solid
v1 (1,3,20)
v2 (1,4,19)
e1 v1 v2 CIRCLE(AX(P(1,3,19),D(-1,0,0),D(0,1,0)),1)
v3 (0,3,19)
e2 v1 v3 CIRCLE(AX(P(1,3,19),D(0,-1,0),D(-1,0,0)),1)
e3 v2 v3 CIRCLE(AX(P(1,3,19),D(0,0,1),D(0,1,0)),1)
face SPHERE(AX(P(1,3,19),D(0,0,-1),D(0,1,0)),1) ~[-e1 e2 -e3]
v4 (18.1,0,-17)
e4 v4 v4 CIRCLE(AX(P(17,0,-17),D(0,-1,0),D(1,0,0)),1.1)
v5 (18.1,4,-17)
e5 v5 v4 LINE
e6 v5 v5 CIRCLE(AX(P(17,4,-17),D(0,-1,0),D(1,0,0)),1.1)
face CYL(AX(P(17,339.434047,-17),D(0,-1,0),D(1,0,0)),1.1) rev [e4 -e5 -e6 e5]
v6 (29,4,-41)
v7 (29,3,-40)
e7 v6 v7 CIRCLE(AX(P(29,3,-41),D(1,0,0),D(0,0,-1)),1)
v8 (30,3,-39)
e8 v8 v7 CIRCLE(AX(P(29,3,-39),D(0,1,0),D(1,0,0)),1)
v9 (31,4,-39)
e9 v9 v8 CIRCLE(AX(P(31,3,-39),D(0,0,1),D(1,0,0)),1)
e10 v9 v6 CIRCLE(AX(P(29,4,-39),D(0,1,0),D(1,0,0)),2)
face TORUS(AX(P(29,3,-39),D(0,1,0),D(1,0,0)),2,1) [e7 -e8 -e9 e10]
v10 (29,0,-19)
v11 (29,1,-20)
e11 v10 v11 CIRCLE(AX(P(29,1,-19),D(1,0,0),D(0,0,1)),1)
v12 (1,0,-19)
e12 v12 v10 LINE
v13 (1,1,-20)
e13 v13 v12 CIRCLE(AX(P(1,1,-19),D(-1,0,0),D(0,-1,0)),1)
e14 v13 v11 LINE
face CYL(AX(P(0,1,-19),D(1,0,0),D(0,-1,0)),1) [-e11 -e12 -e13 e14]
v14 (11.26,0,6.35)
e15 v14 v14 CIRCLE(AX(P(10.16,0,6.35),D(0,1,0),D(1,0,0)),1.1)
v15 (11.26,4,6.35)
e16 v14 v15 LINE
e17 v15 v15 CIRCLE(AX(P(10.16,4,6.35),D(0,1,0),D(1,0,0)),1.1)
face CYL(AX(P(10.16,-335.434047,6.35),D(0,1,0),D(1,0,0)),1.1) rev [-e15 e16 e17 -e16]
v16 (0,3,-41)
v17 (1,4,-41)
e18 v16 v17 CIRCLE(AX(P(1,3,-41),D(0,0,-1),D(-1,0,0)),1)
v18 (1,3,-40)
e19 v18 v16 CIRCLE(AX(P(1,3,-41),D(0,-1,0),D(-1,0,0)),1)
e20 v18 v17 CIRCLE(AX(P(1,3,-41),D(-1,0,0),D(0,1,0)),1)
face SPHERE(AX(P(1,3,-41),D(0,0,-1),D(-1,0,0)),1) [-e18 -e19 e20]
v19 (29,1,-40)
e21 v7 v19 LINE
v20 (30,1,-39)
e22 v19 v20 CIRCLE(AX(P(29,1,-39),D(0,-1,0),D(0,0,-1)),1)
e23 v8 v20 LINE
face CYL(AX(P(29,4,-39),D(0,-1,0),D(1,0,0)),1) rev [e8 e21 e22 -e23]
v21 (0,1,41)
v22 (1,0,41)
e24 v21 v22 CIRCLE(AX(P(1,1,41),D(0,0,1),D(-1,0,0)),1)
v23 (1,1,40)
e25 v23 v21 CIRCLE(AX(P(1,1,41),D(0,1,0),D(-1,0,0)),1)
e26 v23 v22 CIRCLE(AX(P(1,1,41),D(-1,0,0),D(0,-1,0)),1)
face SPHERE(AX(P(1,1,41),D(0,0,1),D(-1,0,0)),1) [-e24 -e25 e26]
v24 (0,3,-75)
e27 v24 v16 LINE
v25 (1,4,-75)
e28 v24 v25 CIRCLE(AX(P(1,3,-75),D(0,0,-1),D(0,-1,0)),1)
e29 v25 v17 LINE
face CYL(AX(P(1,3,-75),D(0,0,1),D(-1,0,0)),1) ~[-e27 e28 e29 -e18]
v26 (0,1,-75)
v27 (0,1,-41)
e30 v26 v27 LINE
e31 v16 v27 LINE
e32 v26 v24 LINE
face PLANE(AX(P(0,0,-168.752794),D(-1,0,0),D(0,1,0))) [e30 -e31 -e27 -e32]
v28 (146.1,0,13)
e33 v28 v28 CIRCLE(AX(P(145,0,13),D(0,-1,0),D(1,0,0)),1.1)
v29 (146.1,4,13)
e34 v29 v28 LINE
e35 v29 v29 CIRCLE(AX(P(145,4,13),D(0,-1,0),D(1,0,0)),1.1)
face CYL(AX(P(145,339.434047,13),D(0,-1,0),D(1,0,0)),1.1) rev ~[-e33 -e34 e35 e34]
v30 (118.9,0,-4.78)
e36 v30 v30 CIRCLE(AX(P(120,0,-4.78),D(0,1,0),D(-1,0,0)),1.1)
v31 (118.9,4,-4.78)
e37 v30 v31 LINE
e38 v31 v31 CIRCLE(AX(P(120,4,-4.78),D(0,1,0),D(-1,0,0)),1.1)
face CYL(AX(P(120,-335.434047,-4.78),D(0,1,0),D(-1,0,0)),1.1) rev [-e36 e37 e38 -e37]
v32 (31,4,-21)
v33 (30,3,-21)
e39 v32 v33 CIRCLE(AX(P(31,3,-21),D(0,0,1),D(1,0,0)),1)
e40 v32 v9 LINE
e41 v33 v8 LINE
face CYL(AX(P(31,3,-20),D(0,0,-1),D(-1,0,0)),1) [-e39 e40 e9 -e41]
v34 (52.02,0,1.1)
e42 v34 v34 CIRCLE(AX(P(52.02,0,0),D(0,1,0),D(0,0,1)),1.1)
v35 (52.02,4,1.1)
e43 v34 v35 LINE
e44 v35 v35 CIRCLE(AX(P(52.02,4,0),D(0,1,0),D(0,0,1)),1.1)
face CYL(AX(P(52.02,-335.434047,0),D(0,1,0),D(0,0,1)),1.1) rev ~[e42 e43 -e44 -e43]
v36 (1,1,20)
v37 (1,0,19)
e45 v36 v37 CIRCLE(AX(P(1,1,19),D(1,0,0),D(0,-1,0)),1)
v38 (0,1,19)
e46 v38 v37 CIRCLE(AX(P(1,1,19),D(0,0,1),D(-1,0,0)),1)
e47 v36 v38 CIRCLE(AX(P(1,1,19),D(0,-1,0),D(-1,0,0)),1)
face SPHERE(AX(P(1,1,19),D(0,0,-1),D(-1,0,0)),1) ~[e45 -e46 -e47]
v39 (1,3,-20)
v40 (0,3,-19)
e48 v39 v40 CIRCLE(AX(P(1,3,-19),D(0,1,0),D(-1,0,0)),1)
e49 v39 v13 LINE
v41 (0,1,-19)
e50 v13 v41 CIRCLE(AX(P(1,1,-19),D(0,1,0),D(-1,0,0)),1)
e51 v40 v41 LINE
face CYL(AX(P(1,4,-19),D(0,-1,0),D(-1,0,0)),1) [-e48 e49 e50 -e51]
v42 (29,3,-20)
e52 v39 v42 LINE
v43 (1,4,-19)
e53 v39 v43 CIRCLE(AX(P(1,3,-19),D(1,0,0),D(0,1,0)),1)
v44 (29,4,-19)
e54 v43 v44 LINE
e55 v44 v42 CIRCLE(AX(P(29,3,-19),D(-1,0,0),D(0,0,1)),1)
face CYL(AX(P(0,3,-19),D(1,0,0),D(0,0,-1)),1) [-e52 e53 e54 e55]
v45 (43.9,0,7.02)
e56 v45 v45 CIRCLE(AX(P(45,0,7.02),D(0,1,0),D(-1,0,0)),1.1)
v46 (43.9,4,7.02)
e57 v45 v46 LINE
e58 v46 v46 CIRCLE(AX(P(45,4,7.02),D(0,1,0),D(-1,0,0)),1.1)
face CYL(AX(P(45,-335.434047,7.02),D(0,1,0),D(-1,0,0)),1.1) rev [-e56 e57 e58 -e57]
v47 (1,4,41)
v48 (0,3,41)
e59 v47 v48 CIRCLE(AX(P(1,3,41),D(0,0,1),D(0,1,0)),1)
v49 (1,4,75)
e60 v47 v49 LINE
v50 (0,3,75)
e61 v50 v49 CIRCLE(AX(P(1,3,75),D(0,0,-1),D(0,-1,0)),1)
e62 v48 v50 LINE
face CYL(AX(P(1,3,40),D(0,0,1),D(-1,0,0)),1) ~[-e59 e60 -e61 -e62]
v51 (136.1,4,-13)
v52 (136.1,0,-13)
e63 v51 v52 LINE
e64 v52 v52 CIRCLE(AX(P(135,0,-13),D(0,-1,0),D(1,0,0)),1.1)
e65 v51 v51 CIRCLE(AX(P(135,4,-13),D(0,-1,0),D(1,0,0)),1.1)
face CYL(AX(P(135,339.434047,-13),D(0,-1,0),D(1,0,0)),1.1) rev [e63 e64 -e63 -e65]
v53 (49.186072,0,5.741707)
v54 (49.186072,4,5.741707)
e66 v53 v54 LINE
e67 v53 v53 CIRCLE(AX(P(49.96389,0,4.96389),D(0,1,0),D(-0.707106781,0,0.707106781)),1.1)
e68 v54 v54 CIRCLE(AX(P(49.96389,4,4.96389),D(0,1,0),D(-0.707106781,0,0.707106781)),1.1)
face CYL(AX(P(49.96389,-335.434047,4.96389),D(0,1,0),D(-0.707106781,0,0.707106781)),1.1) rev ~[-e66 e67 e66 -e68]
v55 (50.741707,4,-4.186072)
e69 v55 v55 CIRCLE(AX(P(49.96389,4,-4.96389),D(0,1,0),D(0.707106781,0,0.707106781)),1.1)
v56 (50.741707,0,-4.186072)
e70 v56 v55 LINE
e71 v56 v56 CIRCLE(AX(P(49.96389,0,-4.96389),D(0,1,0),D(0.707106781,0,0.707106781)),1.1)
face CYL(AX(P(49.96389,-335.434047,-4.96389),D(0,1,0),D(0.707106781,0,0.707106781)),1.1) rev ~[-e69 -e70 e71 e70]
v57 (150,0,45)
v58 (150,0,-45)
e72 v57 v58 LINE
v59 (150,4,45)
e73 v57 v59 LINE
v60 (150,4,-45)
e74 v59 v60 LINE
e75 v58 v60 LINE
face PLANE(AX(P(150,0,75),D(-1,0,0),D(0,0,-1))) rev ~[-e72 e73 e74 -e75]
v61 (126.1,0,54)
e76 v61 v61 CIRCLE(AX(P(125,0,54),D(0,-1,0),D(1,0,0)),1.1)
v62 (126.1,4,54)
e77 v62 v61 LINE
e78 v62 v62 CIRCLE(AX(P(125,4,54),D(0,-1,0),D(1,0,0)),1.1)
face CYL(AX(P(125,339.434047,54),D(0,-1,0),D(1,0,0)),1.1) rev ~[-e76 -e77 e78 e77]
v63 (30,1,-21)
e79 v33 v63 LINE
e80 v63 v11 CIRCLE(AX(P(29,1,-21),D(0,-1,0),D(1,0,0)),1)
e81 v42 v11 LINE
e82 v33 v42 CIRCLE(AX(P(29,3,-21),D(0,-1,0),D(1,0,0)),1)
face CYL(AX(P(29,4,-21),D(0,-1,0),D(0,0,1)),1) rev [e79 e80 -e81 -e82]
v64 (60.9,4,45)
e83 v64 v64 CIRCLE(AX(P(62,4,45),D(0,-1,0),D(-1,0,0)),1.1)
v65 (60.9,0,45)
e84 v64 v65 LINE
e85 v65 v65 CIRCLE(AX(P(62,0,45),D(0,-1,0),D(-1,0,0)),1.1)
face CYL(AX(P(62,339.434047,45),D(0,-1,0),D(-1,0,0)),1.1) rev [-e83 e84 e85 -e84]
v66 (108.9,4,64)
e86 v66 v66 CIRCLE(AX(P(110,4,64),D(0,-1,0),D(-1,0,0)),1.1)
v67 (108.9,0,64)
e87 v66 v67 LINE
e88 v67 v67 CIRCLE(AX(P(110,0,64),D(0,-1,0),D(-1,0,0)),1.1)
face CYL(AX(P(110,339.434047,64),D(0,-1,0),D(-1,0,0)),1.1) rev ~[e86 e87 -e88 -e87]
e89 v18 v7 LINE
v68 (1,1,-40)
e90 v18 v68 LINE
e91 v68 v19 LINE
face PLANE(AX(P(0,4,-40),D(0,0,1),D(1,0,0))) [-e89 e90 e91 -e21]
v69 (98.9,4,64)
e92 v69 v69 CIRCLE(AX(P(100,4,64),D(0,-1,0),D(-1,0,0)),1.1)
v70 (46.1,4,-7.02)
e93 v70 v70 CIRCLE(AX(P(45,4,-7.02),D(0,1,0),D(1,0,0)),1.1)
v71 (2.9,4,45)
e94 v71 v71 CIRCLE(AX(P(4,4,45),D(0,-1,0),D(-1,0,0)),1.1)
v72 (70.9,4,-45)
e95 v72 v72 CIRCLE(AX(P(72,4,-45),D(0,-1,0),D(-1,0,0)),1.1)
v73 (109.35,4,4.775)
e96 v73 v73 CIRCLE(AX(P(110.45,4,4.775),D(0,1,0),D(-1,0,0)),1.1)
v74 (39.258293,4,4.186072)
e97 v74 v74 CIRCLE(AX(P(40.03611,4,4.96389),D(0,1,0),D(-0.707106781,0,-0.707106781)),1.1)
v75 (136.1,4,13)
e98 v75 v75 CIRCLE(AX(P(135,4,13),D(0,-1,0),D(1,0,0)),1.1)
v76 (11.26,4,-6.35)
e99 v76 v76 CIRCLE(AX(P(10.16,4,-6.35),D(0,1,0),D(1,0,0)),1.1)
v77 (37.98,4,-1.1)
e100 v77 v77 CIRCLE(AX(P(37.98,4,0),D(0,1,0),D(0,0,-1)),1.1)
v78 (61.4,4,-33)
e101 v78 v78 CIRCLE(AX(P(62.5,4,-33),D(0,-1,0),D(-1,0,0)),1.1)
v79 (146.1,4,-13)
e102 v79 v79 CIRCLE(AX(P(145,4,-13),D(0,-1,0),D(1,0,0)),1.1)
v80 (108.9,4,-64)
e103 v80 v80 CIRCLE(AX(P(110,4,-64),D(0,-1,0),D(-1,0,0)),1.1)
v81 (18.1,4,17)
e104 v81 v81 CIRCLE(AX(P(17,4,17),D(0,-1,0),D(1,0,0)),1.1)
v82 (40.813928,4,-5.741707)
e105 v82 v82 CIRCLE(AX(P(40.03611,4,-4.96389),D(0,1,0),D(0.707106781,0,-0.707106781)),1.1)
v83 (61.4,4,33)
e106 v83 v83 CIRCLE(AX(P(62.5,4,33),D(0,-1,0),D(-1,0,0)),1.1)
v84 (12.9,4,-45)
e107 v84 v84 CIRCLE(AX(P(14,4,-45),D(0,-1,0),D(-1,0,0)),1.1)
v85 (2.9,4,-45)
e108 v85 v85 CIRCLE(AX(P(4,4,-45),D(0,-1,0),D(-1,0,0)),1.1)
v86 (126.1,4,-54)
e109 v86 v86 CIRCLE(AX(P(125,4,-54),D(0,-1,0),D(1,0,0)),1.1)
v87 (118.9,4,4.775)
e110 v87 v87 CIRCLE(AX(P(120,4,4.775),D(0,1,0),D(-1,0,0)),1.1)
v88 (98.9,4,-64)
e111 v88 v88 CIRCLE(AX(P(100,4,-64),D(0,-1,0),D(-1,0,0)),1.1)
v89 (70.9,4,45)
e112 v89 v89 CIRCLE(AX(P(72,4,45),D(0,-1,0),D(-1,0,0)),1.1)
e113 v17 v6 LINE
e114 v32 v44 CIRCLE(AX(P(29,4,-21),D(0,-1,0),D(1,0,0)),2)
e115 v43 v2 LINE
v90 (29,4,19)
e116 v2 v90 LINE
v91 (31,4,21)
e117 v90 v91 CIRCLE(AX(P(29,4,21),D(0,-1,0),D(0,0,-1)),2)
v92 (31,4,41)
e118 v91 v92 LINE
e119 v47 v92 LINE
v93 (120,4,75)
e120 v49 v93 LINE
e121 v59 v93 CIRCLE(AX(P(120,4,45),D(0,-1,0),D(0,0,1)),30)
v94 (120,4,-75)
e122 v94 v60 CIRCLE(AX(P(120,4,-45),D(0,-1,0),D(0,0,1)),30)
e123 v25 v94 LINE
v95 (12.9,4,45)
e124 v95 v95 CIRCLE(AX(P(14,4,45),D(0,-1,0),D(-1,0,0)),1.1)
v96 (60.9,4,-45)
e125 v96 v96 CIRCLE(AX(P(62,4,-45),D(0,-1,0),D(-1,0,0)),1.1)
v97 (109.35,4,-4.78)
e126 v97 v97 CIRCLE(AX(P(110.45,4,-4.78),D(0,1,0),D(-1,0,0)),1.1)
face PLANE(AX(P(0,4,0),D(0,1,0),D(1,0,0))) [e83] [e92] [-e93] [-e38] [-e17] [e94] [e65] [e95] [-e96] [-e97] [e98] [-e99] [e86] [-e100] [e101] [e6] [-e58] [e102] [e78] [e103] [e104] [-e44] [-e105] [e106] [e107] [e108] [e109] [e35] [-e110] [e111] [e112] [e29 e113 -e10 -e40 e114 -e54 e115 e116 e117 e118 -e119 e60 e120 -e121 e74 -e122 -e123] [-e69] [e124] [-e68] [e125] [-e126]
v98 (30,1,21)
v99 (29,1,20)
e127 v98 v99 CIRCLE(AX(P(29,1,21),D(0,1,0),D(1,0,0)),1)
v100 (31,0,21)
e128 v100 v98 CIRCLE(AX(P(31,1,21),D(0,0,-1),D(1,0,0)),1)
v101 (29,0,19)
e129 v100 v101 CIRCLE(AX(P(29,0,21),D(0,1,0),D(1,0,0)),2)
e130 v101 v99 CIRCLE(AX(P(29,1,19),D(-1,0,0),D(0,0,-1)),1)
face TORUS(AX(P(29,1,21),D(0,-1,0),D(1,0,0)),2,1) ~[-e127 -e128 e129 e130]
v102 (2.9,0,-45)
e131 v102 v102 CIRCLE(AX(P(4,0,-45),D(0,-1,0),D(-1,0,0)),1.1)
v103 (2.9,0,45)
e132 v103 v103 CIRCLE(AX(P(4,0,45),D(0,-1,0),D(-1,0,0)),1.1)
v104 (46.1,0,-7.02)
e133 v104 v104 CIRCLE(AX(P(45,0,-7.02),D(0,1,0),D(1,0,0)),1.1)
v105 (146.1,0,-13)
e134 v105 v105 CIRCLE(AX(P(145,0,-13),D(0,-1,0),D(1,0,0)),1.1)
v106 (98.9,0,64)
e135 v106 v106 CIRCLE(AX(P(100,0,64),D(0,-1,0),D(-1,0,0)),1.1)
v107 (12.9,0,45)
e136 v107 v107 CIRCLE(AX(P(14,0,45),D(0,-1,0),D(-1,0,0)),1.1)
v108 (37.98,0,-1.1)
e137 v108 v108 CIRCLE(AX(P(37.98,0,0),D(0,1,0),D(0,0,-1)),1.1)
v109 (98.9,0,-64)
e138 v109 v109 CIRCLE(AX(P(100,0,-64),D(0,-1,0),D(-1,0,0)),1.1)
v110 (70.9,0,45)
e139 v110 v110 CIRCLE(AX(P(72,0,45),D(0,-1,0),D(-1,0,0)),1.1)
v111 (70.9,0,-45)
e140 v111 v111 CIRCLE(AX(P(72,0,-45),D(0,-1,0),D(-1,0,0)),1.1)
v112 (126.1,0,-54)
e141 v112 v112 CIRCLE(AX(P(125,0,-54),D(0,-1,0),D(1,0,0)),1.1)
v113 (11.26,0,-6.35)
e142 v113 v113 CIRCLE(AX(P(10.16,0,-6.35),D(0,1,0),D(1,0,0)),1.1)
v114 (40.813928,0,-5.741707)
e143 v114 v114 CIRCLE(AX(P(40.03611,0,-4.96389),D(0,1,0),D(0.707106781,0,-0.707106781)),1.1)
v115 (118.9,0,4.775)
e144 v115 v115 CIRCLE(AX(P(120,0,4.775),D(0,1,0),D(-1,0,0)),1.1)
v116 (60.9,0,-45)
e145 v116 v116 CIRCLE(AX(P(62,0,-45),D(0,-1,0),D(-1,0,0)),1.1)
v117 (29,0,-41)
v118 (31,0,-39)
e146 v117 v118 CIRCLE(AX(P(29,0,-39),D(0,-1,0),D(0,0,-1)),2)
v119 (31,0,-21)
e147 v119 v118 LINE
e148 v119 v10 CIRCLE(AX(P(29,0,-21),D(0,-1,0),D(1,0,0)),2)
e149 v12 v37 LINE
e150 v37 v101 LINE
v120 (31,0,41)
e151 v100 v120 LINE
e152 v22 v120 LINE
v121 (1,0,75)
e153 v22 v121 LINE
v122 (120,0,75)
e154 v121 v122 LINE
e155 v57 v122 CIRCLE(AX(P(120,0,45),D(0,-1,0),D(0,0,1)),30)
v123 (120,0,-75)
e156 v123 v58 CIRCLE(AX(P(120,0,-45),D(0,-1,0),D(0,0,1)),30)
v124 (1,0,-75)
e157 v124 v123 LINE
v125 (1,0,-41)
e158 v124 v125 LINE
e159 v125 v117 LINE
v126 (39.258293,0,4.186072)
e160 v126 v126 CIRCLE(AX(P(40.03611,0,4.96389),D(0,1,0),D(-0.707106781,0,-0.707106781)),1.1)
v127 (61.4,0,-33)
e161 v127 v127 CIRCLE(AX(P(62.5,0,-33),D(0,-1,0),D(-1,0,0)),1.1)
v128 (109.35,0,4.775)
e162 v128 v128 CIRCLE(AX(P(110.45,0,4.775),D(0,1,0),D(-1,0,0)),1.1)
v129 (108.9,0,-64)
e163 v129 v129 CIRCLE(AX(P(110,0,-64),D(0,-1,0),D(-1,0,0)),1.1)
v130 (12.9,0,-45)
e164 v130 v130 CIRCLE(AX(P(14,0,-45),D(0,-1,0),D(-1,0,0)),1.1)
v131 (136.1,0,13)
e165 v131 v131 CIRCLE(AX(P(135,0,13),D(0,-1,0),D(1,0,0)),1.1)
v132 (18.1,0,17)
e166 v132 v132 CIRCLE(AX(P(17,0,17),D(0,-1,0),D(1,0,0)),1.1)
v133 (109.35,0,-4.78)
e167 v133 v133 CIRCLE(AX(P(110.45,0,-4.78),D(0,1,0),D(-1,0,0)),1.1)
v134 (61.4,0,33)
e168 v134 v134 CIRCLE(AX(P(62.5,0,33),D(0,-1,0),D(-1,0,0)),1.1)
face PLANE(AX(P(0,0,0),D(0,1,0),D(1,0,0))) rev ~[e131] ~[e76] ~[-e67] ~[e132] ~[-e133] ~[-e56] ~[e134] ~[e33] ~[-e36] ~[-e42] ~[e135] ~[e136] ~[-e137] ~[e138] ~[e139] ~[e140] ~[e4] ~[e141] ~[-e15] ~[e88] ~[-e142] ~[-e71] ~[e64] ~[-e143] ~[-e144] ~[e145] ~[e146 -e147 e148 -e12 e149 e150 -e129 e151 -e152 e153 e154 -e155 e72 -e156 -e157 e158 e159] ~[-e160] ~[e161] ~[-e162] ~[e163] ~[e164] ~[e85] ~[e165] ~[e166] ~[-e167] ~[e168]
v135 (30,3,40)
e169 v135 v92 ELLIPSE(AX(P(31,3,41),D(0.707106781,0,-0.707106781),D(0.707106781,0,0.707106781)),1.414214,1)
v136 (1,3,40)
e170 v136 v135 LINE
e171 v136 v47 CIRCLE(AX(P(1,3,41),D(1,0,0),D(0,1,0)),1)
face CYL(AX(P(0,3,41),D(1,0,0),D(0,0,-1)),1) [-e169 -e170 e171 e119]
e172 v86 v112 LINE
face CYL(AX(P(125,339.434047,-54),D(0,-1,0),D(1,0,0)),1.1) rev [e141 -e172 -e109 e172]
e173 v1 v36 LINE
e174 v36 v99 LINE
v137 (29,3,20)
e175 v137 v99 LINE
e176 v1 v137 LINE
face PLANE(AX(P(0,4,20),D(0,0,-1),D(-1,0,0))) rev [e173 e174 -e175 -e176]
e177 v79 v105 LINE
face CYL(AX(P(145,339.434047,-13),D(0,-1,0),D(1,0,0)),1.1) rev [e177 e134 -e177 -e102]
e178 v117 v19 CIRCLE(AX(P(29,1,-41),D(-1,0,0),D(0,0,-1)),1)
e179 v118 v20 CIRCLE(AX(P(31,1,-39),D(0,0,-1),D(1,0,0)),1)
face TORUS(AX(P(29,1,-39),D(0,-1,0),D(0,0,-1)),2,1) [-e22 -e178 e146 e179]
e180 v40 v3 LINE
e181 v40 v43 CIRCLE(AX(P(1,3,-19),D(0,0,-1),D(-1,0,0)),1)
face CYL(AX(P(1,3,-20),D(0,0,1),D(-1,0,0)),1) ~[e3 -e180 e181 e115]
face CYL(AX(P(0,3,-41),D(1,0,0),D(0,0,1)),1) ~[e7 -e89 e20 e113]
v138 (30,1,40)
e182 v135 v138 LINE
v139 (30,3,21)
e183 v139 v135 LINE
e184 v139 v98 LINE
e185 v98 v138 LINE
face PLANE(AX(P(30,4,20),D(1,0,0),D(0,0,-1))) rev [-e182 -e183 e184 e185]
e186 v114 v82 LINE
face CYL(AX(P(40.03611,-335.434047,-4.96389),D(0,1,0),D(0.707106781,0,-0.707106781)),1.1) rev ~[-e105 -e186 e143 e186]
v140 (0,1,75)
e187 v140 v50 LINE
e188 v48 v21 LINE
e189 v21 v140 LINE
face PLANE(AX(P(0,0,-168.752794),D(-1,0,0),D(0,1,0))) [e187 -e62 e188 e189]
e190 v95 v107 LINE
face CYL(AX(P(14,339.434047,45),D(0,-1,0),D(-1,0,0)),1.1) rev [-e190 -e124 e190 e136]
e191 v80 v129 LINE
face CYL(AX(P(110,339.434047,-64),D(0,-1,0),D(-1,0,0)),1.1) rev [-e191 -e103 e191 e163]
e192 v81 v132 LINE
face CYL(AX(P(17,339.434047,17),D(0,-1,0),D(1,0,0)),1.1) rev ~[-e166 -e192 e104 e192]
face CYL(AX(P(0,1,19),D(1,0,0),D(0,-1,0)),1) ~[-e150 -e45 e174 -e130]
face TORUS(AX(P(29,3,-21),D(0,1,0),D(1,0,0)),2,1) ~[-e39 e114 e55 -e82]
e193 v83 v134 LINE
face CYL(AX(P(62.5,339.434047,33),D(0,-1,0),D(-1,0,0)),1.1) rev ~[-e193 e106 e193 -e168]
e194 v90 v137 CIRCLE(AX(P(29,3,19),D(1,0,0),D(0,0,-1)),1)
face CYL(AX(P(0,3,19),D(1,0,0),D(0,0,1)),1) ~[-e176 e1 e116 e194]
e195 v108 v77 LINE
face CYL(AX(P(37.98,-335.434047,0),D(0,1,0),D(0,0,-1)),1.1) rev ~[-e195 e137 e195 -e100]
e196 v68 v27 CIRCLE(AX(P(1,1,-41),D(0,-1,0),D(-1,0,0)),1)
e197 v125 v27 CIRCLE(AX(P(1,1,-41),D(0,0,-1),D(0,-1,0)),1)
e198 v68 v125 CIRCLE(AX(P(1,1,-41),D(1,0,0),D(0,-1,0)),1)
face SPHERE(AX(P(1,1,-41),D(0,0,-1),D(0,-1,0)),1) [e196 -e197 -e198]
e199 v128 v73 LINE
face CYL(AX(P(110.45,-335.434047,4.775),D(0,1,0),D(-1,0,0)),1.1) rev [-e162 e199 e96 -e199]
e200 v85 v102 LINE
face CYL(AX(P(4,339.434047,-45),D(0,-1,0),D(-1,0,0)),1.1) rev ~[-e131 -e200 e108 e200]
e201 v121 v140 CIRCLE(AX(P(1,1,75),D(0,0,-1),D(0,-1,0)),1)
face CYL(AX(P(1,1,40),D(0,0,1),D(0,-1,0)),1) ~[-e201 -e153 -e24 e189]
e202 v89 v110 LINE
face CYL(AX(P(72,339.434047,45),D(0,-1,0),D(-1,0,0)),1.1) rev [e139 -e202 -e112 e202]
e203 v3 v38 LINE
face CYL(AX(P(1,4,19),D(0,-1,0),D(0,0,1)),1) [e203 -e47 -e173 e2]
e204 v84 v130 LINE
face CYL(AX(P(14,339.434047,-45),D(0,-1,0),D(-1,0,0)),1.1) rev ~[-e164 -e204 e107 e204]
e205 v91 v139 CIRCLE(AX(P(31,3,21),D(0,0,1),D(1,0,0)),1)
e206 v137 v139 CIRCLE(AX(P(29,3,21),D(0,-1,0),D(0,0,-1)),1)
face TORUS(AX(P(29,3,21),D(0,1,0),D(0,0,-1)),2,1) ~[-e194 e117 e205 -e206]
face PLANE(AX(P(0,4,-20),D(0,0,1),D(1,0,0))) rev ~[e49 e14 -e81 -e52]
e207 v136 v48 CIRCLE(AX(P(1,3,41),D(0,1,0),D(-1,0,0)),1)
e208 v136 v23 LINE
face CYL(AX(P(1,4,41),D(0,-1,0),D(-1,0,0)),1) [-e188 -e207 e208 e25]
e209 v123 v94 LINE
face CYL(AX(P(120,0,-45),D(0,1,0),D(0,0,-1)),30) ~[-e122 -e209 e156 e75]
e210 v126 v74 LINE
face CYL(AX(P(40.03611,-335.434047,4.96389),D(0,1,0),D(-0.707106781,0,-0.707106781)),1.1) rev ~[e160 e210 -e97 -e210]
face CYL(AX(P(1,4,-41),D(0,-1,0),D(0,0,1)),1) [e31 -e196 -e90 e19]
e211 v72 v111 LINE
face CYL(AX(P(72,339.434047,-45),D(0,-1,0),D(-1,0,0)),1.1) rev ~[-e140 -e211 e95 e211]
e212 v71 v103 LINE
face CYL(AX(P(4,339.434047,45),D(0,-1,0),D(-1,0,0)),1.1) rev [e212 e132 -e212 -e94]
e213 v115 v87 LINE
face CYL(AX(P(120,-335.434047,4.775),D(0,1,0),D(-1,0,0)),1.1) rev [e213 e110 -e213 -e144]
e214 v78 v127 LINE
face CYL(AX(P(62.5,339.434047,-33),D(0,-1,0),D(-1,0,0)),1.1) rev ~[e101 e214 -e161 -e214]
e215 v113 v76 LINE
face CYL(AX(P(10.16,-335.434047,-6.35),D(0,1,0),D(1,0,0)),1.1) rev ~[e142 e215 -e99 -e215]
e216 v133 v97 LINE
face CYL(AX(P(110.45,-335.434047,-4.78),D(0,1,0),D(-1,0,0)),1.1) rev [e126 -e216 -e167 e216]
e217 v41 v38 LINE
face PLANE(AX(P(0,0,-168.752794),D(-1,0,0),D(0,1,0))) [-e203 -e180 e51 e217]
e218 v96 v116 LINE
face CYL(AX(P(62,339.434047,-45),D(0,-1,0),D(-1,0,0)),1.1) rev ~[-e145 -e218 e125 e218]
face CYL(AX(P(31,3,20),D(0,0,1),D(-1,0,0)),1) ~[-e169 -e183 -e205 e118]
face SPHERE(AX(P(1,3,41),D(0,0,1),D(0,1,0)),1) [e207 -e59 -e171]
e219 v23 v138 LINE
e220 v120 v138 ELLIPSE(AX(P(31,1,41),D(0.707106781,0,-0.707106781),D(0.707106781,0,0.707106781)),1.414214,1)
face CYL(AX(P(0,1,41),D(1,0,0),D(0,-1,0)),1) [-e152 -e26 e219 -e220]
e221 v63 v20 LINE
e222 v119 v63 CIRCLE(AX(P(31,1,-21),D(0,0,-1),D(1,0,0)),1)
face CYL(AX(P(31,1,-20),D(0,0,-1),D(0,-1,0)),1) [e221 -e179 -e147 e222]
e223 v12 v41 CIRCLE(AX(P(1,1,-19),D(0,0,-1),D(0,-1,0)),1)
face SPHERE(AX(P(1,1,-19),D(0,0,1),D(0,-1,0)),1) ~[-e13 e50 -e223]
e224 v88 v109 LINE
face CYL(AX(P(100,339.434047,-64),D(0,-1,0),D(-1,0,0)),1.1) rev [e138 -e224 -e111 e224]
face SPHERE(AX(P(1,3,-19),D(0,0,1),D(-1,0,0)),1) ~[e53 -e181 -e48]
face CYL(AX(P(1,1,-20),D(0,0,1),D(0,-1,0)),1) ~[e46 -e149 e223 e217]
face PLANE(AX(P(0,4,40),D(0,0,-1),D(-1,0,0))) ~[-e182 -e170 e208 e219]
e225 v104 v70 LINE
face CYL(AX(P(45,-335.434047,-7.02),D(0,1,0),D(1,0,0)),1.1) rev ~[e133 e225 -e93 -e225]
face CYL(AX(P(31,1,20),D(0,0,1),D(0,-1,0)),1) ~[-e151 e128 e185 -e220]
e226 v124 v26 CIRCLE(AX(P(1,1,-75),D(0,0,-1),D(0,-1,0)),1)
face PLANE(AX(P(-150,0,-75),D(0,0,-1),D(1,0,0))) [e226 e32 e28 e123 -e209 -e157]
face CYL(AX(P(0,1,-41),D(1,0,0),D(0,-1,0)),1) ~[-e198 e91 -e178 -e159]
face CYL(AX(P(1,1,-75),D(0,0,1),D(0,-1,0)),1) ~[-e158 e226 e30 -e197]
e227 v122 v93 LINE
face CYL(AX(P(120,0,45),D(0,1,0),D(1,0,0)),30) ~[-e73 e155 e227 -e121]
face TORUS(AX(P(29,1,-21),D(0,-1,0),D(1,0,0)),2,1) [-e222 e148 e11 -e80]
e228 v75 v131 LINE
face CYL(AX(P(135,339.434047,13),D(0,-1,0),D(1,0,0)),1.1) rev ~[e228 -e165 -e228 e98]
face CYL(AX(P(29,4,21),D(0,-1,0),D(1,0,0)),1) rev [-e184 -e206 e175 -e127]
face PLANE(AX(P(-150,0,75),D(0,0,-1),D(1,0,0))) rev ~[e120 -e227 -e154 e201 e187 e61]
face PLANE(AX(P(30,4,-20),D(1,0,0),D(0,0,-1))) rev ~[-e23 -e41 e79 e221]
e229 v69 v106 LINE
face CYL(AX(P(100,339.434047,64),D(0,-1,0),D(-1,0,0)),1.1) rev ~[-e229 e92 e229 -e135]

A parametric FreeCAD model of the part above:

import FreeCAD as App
import Part
import Sketcher
from FreeCAD import Vector


def edges_at(feature, points):
    """Names of the edges that pass closest to the given points."""
    edges = feature.Shape.Edges
    near = lambda p: min(range(len(edges)), key=lambda i: edges[i].distToShape(Part.Vertex(*p))[0])
    return sorted({f"Edge{near(p) + 1}" for p in points})


def add_polygon(sketch, points):
    """Adds a closed chain of lines whose ends are joined by coincident constraints."""
    first, n = sketch.GeometryCount, len(points)
    for a, b in zip(points, points[1:] + points[:1]):
        sketch.addGeometry(Part.LineSegment(App.Vector(*a, 0), App.Vector(*b, 0)), False)
    for i in range(n):
        sketch.addConstraint(Sketcher.Constraint("Coincident", first + i, 2, first + (i + 1) % n, 1))

doc = App.newDocument("Part")
body = doc.addObject("PartDesign::Body", "Body")

# Sketch on XZ plane
sketch1 = body.newObject("Sketcher::SketchObject", "Sketch")
sketch1.AttachmentSupport = (doc.getObject("XZ_Plane"), [""])
sketch1.MapMode = "FlatFace"
add_polygon(sketch1, [(-150, -75), (-150, 75), (150, 75), (150, -75)])  # lines 0-3
sketch1.addConstraint(Sketcher.Constraint("Vertical", 0))
sketch1.addConstraint(Sketcher.Constraint("Horizontal", 1))
sketch1.addConstraint(Sketcher.Constraint("Vertical", 2))
sketch1.addConstraint(Sketcher.Constraint("Horizontal", 3))
sketch1.addConstraint(Sketcher.Constraint("Symmetric", 0, 2, 2, 2, -1, 1))
sketch1.addConstraint(Sketcher.Constraint("DistanceX", 1, 1, 1, 2, 300.0))
sketch1.addConstraint(Sketcher.Constraint("DistanceY", 0, 1, 0, 2, 150.0))
pad1 = body.newObject("PartDesign::Pad", "Pad")
pad1.Profile = sketch1
pad1.Length = 4
pad1.Reversed = True
doc.recompute()

fillet = body.newObject("PartDesign::Fillet", "Fillet")
fillet.Base = (pad1, edges_at(pad1, [(-150, 2, 75)]))
fillet.Radius = 30
doc.recompute()

fillet2 = body.newObject("PartDesign::Fillet", "Fillet001")
fillet2.Base = (fillet, edges_at(fillet, [(-150, 2, -75)]))
fillet2.Radius = 30
doc.recompute()

fillet3 = body.newObject("PartDesign::Fillet", "Fillet002")
fillet3.Base = (fillet2, edges_at(fillet2, [(150, 2, -75)]))
fillet3.Radius = 30
doc.recompute()

fillet4 = body.newObject("PartDesign::Fillet", "Fillet003")
fillet4.Base = (fillet3, edges_at(fillet3, [(150, 2, 75)]))
fillet4.Radius = 30

# Sketch on XZ plane
sketch2 = body.newObject("Sketcher::SketchObject", "Sketch001")
sketch2.AttachmentSupport = (doc.getObject("XZ_Plane"), [""])
sketch2.MapMode = "FlatFace"
sketch2.addGeometry(Part.Circle(Vector(-45, 7, 0), Vector(0, 0, 1), 1.1), False)
sketch2.addConstraint(Sketcher.Constraint("Diameter", 0, 2.2))
sketch2.addConstraint(Sketcher.Constraint("DistanceX", 0, 3, -1, 1, 45.0))
sketch2.addConstraint(Sketcher.Constraint("DistanceY", -1, 1, 0, 3, 7.02))
doc.recompute()
hole = body.newObject("PartDesign::Hole", "Hole")
hole.Profile = sketch2
hole.ThreadType = "None"
hole.Diameter = 2.2
hole.DepthType = "ThroughAll"
doc.recompute()

datumline = body.newObject("PartDesign::Line", "DatumLine")
datumline.Placement = App.Placement(Vector(-45, 0, 0), App.Rotation(Vector(0, 0, 1), Vector(0, 1, 0)))
polarpattern = body.newObject("PartDesign::PolarPattern", "PolarPattern")
polarpattern.Originals = [hole]
polarpattern.Axis = (datumline, [""])
polarpattern.Angle = 360
polarpattern.Occurrences = 8
body.Tip = polarpattern
doc.recompute()

mirrored = body.newObject("PartDesign::Mirrored", "Mirrored")
mirrored.Originals = [hole]
mirrored.MirrorPlane = (doc.getObject("YZ_Plane"), [""])
body.Tip = mirrored

# Sketch on XZ plane
sketch3 = body.newObject("Sketcher::SketchObject", "Sketch002")
sketch3.AttachmentSupport = (doc.getObject("XZ_Plane"), [""])
sketch3.MapMode = "FlatFace"
sketch3.addGeometry(Part.Circle(Vector(40, 5, 0), Vector(0, 0, 1), 1.1), False)
sketch3.addConstraint(Sketcher.Constraint("Diameter", 0, 2.2))
sketch3.addConstraint(Sketcher.Constraint("DistanceX", -1, 1, 0, 3, 40.03611))
sketch3.addConstraint(Sketcher.Constraint("DistanceY", -1, 1, 0, 3, 4.96389))
doc.recompute()
hole2 = body.newObject("PartDesign::Hole", "Hole001")
hole2.Profile = sketch3
hole2.ThreadType = "None"
hole2.Diameter = 2.2
hole2.DepthType = "ThroughAll"

# Sketch on XZ plane
sketch4 = body.newObject("Sketcher::SketchObject", "Sketch003")
sketch4.AttachmentSupport = (doc.getObject("XZ_Plane"), [""])
sketch4.MapMode = "FlatFace"
sketch4.addGeometry(Part.Circle(Vector(38, 0, 0), Vector(0, 0, 1), 1.1), False)
sketch4.addConstraint(Sketcher.Constraint("PointOnObject", 0, 3, -1))
sketch4.addConstraint(Sketcher.Constraint("Diameter", 0, 2.2))
sketch4.addConstraint(Sketcher.Constraint("DistanceX", -1, 1, 0, 3, 37.98))
doc.recompute()
hole3 = body.newObject("PartDesign::Hole", "Hole002")
hole3.Profile = sketch4
hole3.ThreadType = "None"
hole3.Diameter = 2.2
hole3.DepthType = "ThroughAll"

# Sketch on XZ plane
sketch5 = body.newObject("Sketcher::SketchObject", "Sketch004")
sketch5.AttachmentSupport = (doc.getObject("XZ_Plane"), [""])
sketch5.MapMode = "FlatFace"
sketch5.addGeometry(Part.Circle(Vector(40, -5, 0), Vector(0, 0, 1), 1.1), False)
sketch5.addConstraint(Sketcher.Constraint("Diameter", 0, 2.2))
sketch5.addConstraint(Sketcher.Constraint("DistanceX", -1, 1, 0, 3, 40.03611))
sketch5.addConstraint(Sketcher.Constraint("DistanceY", 0, 3, -1, 1, 4.96389))
doc.recompute()
hole4 = body.newObject("PartDesign::Hole", "Hole003")
hole4.Profile = sketch5
hole4.ThreadType = "None"
hole4.Diameter = 2.2
hole4.DepthType = "ThroughAll"

# Sketch on XZ plane
sketch6 = body.newObject("Sketcher::SketchObject", "Sketch005")
sketch6.AttachmentSupport = (doc.getObject("XZ_Plane"), [""])
sketch6.MapMode = "FlatFace"
sketch6.addGeometry(Part.Circle(Vector(45, -7, 0), Vector(0, 0, 1), 1.1), False)
sketch6.addConstraint(Sketcher.Constraint("Diameter", 0, 2.2))
sketch6.addConstraint(Sketcher.Constraint("DistanceX", -1, 1, 0, 3, 45.0))
sketch6.addConstraint(Sketcher.Constraint("DistanceY", 0, 3, -1, 1, 7.02))
doc.recompute()
hole5 = body.newObject("PartDesign::Hole", "Hole004")
hole5.Profile = sketch6
hole5.ThreadType = "None"
hole5.Diameter = 2.2
hole5.DepthType = "ThroughAll"

# Sketch on XZ plane
sketch7 = body.newObject("Sketcher::SketchObject", "Sketch006")
sketch7.AttachmentSupport = (doc.getObject("XZ_Plane"), [""])
sketch7.MapMode = "FlatFace"
sketch7.addGeometry(Part.Circle(Vector(50, -5, 0), Vector(0, 0, 1), 1.1), False)
sketch7.addConstraint(Sketcher.Constraint("Diameter", 0, 2.2))
sketch7.addConstraint(Sketcher.Constraint("DistanceX", -1, 1, 0, 3, 49.96389))
sketch7.addConstraint(Sketcher.Constraint("DistanceY", 0, 3, -1, 1, 4.96389))
doc.recompute()
hole6 = body.newObject("PartDesign::Hole", "Hole005")
hole6.Profile = sketch7
hole6.ThreadType = "None"
hole6.Diameter = 2.2
hole6.DepthType = "ThroughAll"

# Sketch on XZ plane
sketch8 = body.newObject("Sketcher::SketchObject", "Sketch007")
sketch8.AttachmentSupport = (doc.getObject("XZ_Plane"), [""])
sketch8.MapMode = "FlatFace"
sketch8.addGeometry(Part.Circle(Vector(52, 0, 0), Vector(0, 0, 1), 1.1), False)
sketch8.addConstraint(Sketcher.Constraint("PointOnObject", 0, 3, -1))
sketch8.addConstraint(Sketcher.Constraint("Diameter", 0, 2.2))
sketch8.addConstraint(Sketcher.Constraint("DistanceX", -1, 1, 0, 3, 52.02))
doc.recompute()
hole7 = body.newObject("PartDesign::Hole", "Hole006")
hole7.Profile = sketch8
hole7.ThreadType = "None"
hole7.Diameter = 2.2
hole7.DepthType = "ThroughAll"

# Sketch on XZ plane
sketch9 = body.newObject("Sketcher::SketchObject", "Sketch008")
sketch9.AttachmentSupport = (doc.getObject("XZ_Plane"), [""])
sketch9.MapMode = "FlatFace"
sketch9.addGeometry(Part.Circle(Vector(50, 5, 0), Vector(0, 0, 1), 1.1), False)
sketch9.addConstraint(Sketcher.Constraint("Diameter", 0, 2.2))
sketch9.addConstraint(Sketcher.Constraint("DistanceX", -1, 1, 0, 3, 49.96389))
sketch9.addConstraint(Sketcher.Constraint("DistanceY", -1, 1, 0, 3, 4.96389))
doc.recompute()
hole8 = body.newObject("PartDesign::Hole", "Hole007")
hole8.Profile = sketch9
hole8.ThreadType = "None"
hole8.Diameter = 2.2
hole8.DepthType = "ThroughAll"

# Sketch on XZ plane
sketch10 = body.newObject("Sketcher::SketchObject", "Sketch009")
sketch10.AttachmentSupport = (doc.getObject("XZ_Plane"), [""])
sketch10.MapMode = "FlatFace"
sketch10.addGeometry(Part.Circle(Vector(-120, -4.8, 0), Vector(0, 0, 1), 1.1), False)
sketch10.addGeometry(Part.Circle(Vector(-120, 4.8, 0), Vector(0, 0, 1), 1.1), False)
sketch10.addGeometry(Part.Circle(Vector(-110.5, 4.8, 0), Vector(0, 0, 1), 1.1), False)
sketch10.addGeometry(Part.Circle(Vector(-110.5, -4.8, 0), Vector(0, 0, 1), 1.1), False)
sketch10.addConstraint(Sketcher.Constraint("Equal", 0, 1))
sketch10.addConstraint(Sketcher.Constraint("Equal", 1, 2))
sketch10.addConstraint(Sketcher.Constraint("Equal", 2, 3))
sketch10.addConstraint(Sketcher.Constraint("Horizontal", 1, 3, 2, 3))
sketch10.addConstraint(Sketcher.Constraint("Horizontal", 0, 3, 3, 3))
sketch10.addConstraint(Sketcher.Constraint("Vertical", 0, 3, 1, 3))
sketch10.addConstraint(Sketcher.Constraint("Vertical", 2, 3, 3, 3))
sketch10.addConstraint(Sketcher.Constraint("Diameter", 0, 2.2))
sketch10.addConstraint(Sketcher.Constraint("DistanceX", 0, 3, -1, 1, 120.0))
sketch10.addConstraint(Sketcher.Constraint("DistanceY", 0, 3, -1, 1, 4.78))
sketch10.addConstraint(Sketcher.Constraint("DistanceX", 2, 3, -1, 1, 110.45))
sketch10.addConstraint(Sketcher.Constraint("DistanceY", -1, 1, 1, 3, 4.775))
doc.recompute()
hole9 = body.newObject("PartDesign::Hole", "Hole008")
hole9.Profile = sketch10
hole9.ThreadType = "None"
hole9.Diameter = 2.2
hole9.DepthType = "ThroughAll"
doc.recompute()

mirrored2 = body.newObject("PartDesign::Mirrored", "Mirrored001")
mirrored2.Originals = [hole9]
mirrored2.MirrorPlane = (doc.getObject("YZ_Plane"), [""])
body.Tip = mirrored2

# Sketch on XZ plane
sketch11 = body.newObject("Sketcher::SketchObject", "Sketch010")
sketch11.AttachmentSupport = (doc.getObject("XZ_Plane"), [""])
sketch11.MapMode = "FlatFace"
sketch11.AttachmentOffset = App.Placement(Vector(0, 0, -4), App.Rotation())
sketch11.addGeometry(Part.Circle(Vector(100, 64, 0), Vector(0, 0, 1), 1.1), False)
sketch11.addGeometry(Part.Circle(Vector(110, 64, 0), Vector(0, 0, 1), 1.1), False)
sketch11.addGeometry(Part.Circle(Vector(-100, 64, 0), Vector(0, 0, 1), 1.1), False)
sketch11.addGeometry(Part.Circle(Vector(-110, 64, 0), Vector(0, 0, 1), 1.1), False)
sketch11.addConstraint(Sketcher.Constraint("Equal", 0, 1))
sketch11.addConstraint(Sketcher.Constraint("Equal", 1, 2))
sketch11.addConstraint(Sketcher.Constraint("Equal", 2, 3))
sketch11.addConstraint(Sketcher.Constraint("Symmetric", 0, 3, 2, 3, -2))
sketch11.addConstraint(Sketcher.Constraint("Symmetric", 1, 3, 3, 3, -2))
sketch11.addConstraint(Sketcher.Constraint("Horizontal", 0, 3, 1, 3))
sketch11.addConstraint(Sketcher.Constraint("Diameter", 0, 2.2))
sketch11.addConstraint(Sketcher.Constraint("DistanceX", -1, 1, 0, 3, 100.0))
sketch11.addConstraint(Sketcher.Constraint("DistanceY", -1, 1, 0, 3, 64.0))
sketch11.addConstraint(Sketcher.Constraint("DistanceX", -1, 1, 1, 3, 110.0))
doc.recompute()
hole10 = body.newObject("PartDesign::Hole", "Hole009")
hole10.Profile = sketch11
hole10.ThreadType = "None"
hole10.Diameter = 2.2
hole10.DepthType = "ThroughAll"
hole10.Reversed = True
doc.recompute()

mirrored3 = body.newObject("PartDesign::Mirrored", "Mirrored002")
mirrored3.Originals = [hole10]
mirrored3.MirrorPlane = (doc.getObject("XY_Plane"), [""])
body.Tip = mirrored3

# Sketch on XZ plane
sketch12 = body.newObject("Sketcher::SketchObject", "Sketch011")
sketch12.AttachmentSupport = (doc.getObject("XZ_Plane"), [""])
sketch12.MapMode = "FlatFace"
sketch12.AttachmentOffset = App.Placement(Vector(0, 0, -4), App.Rotation())
sketch12.addGeometry(Part.Circle(Vector(-125, -54, 0), Vector(0, 0, 1), 1.1), False)
sketch12.addConstraint(Sketcher.Constraint("Diameter", 0, 2.2))
sketch12.addConstraint(Sketcher.Constraint("DistanceX", 0, 3, -1, 1, 125.0))
sketch12.addConstraint(Sketcher.Constraint("DistanceY", 0, 3, -1, 1, 54.0))
doc.recompute()
hole11 = body.newObject("PartDesign::Hole", "Hole010")
hole11.Profile = sketch12
hole11.ThreadType = "None"
hole11.Diameter = 2.2
hole11.DepthType = "ThroughAll"
hole11.Reversed = True
doc.recompute()

mirrored4 = body.newObject("PartDesign::Mirrored", "Mirrored003")
mirrored4.Originals = [hole11]
mirrored4.MirrorPlane = (doc.getObject("YZ_Plane"), [""])
body.Tip = mirrored4
doc.recompute()

mirrored5 = body.newObject("PartDesign::Mirrored", "Mirrored004")
mirrored5.Originals = [hole11]
mirrored5.MirrorPlane = (doc.getObject("XY_Plane"), [""])
body.Tip = mirrored5

# Sketch on XZ plane
sketch13 = body.newObject("Sketcher::SketchObject", "Sketch012")
sketch13.AttachmentSupport = (doc.getObject("XZ_Plane"), [""])
sketch13.MapMode = "FlatFace"
sketch13.AttachmentOffset = App.Placement(Vector(0, 0, -4), App.Rotation())
sketch13.addGeometry(Part.Circle(Vector(125, 54, 0), Vector(0, 0, 1), 1.1), False)
sketch13.addConstraint(Sketcher.Constraint("Diameter", 0, 2.2))
sketch13.addConstraint(Sketcher.Constraint("DistanceX", -1, 1, 0, 3, 125.0))
sketch13.addConstraint(Sketcher.Constraint("DistanceY", -1, 1, 0, 3, 54.0))
doc.recompute()
hole12 = body.newObject("PartDesign::Hole", "Hole011")
hole12.Profile = sketch13
hole12.ThreadType = "None"
hole12.Diameter = 2.2
hole12.DepthType = "ThroughAll"
hole12.Reversed = True

# Sketch on XZ plane
sketch14 = body.newObject("Sketcher::SketchObject", "Sketch013")
sketch14.AttachmentSupport = (doc.getObject("XZ_Plane"), [""])
sketch14.MapMode = "FlatFace"
sketch14.AttachmentOffset = App.Placement(Vector(0, 0, -4), App.Rotation())
sketch14.addGeometry(Part.Circle(Vector(-62.5, -33, 0), Vector(0, 0, 1), 1.1), False)
sketch14.addGeometry(Part.Circle(Vector(-62.5, 33, 0), Vector(0, 0, 1), 1.1), False)
sketch14.addGeometry(Part.Circle(Vector(62.5, 33, 0), Vector(0, 0, 1), 1.1), False)
sketch14.addGeometry(Part.Circle(Vector(62.5, -33, 0), Vector(0, 0, 1), 1.1), False)
sketch14.addConstraint(Sketcher.Constraint("Equal", 0, 1))
sketch14.addConstraint(Sketcher.Constraint("Equal", 1, 2))
sketch14.addConstraint(Sketcher.Constraint("Equal", 2, 3))
sketch14.addConstraint(Sketcher.Constraint("Symmetric", 0, 3, 2, 3, -1, 1))
sketch14.addConstraint(Sketcher.Constraint("Symmetric", 1, 3, 3, 3, -1, 1))
sketch14.addConstraint(Sketcher.Constraint("Symmetric", 1, 3, 2, 3, -2))
sketch14.addConstraint(Sketcher.Constraint("Diameter", 0, 2.2))
sketch14.addConstraint(Sketcher.Constraint("DistanceY", 0, 3, -1, 1, 33.0))
sketch14.addConstraint(Sketcher.Constraint("DistanceX", 1, 3, 2, 3, 125.0))
doc.recompute()
hole13 = body.newObject("PartDesign::Hole", "Hole012")
hole13.Profile = sketch14
hole13.ThreadType = "None"
hole13.Diameter = 2.2
hole13.DepthType = "ThroughAll"
hole13.Reversed = True

# Sketch on XZ plane
sketch15 = body.newObject("Sketcher::SketchObject", "Sketch014")
sketch15.AttachmentSupport = (doc.getObject("XZ_Plane"), [""])
sketch15.MapMode = "FlatFace"
sketch15.AttachmentOffset = App.Placement(Vector(0, 0, -4), App.Rotation())
sketch15.addGeometry(Part.Circle(Vector(-145, -13, 0), Vector(0, 0, 1), 1.1), False)
sketch15.addGeometry(Part.Circle(Vector(-135, -13, 0), Vector(0, 0, 1), 1.1), False)
sketch15.addConstraint(Sketcher.Constraint("Equal", 0, 1))
sketch15.addConstraint(Sketcher.Constraint("Horizontal", 0, 3, 1, 3))
sketch15.addConstraint(Sketcher.Constraint("Diameter", 0, 2.2))
sketch15.addConstraint(Sketcher.Constraint("DistanceX", 0, 3, -1, 1, 145.0))
sketch15.addConstraint(Sketcher.Constraint("DistanceY", 0, 3, -1, 1, 13.0))
sketch15.addConstraint(Sketcher.Constraint("DistanceX", 1, 3, -1, 1, 135.0))
doc.recompute()
hole14 = body.newObject("PartDesign::Hole", "Hole013")
hole14.Profile = sketch15
hole14.ThreadType = "None"
hole14.Diameter = 2.2
hole14.DepthType = "ThroughAll"
hole14.Reversed = True
doc.recompute()

mirrored6 = body.newObject("PartDesign::Mirrored", "Mirrored005")
mirrored6.Originals = [hole14]
mirrored6.MirrorPlane = (doc.getObject("YZ_Plane"), [""])
body.Tip = mirrored6
doc.recompute()

mirrored7 = body.newObject("PartDesign::Mirrored", "Mirrored006")
mirrored7.Originals = [hole14]
mirrored7.MirrorPlane = (doc.getObject("XY_Plane"), [""])
body.Tip = mirrored7

# Sketch on XZ plane
sketch16 = body.newObject("Sketcher::SketchObject", "Sketch015")
sketch16.AttachmentSupport = (doc.getObject("XZ_Plane"), [""])
sketch16.MapMode = "FlatFace"
sketch16.AttachmentOffset = App.Placement(Vector(0, 0, -4), App.Rotation())
sketch16.addGeometry(Part.Circle(Vector(145, 13, 0), Vector(0, 0, 1), 1.1), False)
sketch16.addGeometry(Part.Circle(Vector(135, 13, 0), Vector(0, 0, 1), 1.1), False)
sketch16.addConstraint(Sketcher.Constraint("Equal", 0, 1))
sketch16.addConstraint(Sketcher.Constraint("Horizontal", 0, 3, 1, 3))
sketch16.addConstraint(Sketcher.Constraint("Diameter", 0, 2.2))
sketch16.addConstraint(Sketcher.Constraint("DistanceX", -1, 1, 0, 3, 145.0))
sketch16.addConstraint(Sketcher.Constraint("DistanceY", -1, 1, 0, 3, 13.0))
sketch16.addConstraint(Sketcher.Constraint("DistanceX", -1, 1, 1, 3, 135.0))
doc.recompute()
hole15 = body.newObject("PartDesign::Hole", "Hole014")
hole15.Profile = sketch16
hole15.ThreadType = "None"
hole15.Diameter = 2.2
hole15.DepthType = "ThroughAll"
hole15.Reversed = True

# Sketch on XZ plane
sketch17 = body.newObject("Sketcher::SketchObject", "Sketch016")
sketch17.AttachmentSupport = (doc.getObject("XZ_Plane"), [""])
sketch17.MapMode = "FlatFace"
sketch17.AttachmentOffset = App.Placement(Vector(0, 0, -4), App.Rotation())
sketch17.addGeometry(Part.Circle(Vector(-80, -45, 0), Vector(0, 0, 1), 1.1), False)
sketch17.addGeometry(Part.Circle(Vector(-70, -45, 0), Vector(0, 0, 1), 1.1), False)
sketch17.addGeometry(Part.Circle(Vector(-46, -45, 0), Vector(0, 0, 1), 1.1), False)
sketch17.addGeometry(Part.Circle(Vector(-36, -45, 0), Vector(0, 0, 1), 1.1), False)
sketch17.addGeometry(Part.Circle(Vector(4, -45, 0), Vector(0, 0, 1), 1.1), False)
sketch17.addGeometry(Part.Circle(Vector(14, -45, 0), Vector(0, 0, 1), 1.1), False)
sketch17.addGeometry(Part.Circle(Vector(62, -45, 0), Vector(0, 0, 1), 1.1), False)
sketch17.addGeometry(Part.Circle(Vector(72, -45, 0), Vector(0, 0, 1), 1.1), False)
sketch17.addConstraint(Sketcher.Constraint("Equal", 0, 1))
sketch17.addConstraint(Sketcher.Constraint("Equal", 1, 2))
sketch17.addConstraint(Sketcher.Constraint("Equal", 2, 3))
sketch17.addConstraint(Sketcher.Constraint("Equal", 3, 4))
sketch17.addConstraint(Sketcher.Constraint("Equal", 4, 5))
sketch17.addConstraint(Sketcher.Constraint("Equal", 5, 6))
sketch17.addConstraint(Sketcher.Constraint("Equal", 6, 7))
sketch17.addConstraint(Sketcher.Constraint("Horizontal", 0, 3, 1, 3))
sketch17.addConstraint(Sketcher.Constraint("Horizontal", 1, 3, 2, 3))
sketch17.addConstraint(Sketcher.Constraint("Horizontal", 2, 3, 3, 3))
sketch17.addConstraint(Sketcher.Constraint("Horizontal", 3, 3, 4, 3))
sketch17.addConstraint(Sketcher.Constraint("Horizontal", 4, 3, 5, 3))
sketch17.addConstraint(Sketcher.Constraint("Horizontal", 5, 3, 6, 3))
sketch17.addConstraint(Sketcher.Constraint("Horizontal", 6, 3, 7, 3))
sketch17.addConstraint(Sketcher.Constraint("Diameter", 0, 2.2))
sketch17.addConstraint(Sketcher.Constraint("DistanceX", 0, 3, -1, 1, 80.0))
sketch17.addConstraint(Sketcher.Constraint("DistanceY", 0, 3, -1, 1, 45.0))
sketch17.addConstraint(Sketcher.Constraint("DistanceX", 1, 3, -1, 1, 70.0))
sketch17.addConstraint(Sketcher.Constraint("DistanceX", 2, 3, -1, 1, 46.0))
sketch17.addConstraint(Sketcher.Constraint("DistanceX", 3, 3, -1, 1, 36.0))
sketch17.addConstraint(Sketcher.Constraint("DistanceX", -1, 1, 4, 3, 4.0))
sketch17.addConstraint(Sketcher.Constraint("DistanceX", -1, 1, 5, 3, 14.0))
sketch17.addConstraint(Sketcher.Constraint("DistanceX", -1, 1, 6, 3, 62.0))
sketch17.addConstraint(Sketcher.Constraint("DistanceX", -1, 1, 7, 3, 72.0))
doc.recompute()
hole16 = body.newObject("PartDesign::Hole", "Hole015")
hole16.Profile = sketch17
hole16.ThreadType = "None"
hole16.Diameter = 2.2
hole16.DepthType = "ThroughAll"
hole16.Reversed = True
doc.recompute()

mirrored8 = body.newObject("PartDesign::Mirrored", "Mirrored007")
mirrored8.Originals = [hole16]
mirrored8.MirrorPlane = (doc.getObject("XY_Plane"), [""])
body.Tip = mirrored8

# Sketch on XZ plane
sketch18 = body.newObject("Sketcher::SketchObject", "Sketch017")
sketch18.AttachmentSupport = (doc.getObject("XZ_Plane"), [""])
sketch18.MapMode = "FlatFace"
sketch18.addGeometry(Part.Circle(Vector(-10.2, 6.3, 0), Vector(0, 0, 1), 1.1), False)
sketch18.addConstraint(Sketcher.Constraint("Diameter", 0, 2.2))
sketch18.addConstraint(Sketcher.Constraint("DistanceX", 0, 3, -1, 1, 10.16))
sketch18.addConstraint(Sketcher.Constraint("DistanceY", -1, 1, 0, 3, 6.35))
doc.recompute()
hole17 = body.newObject("PartDesign::Hole", "Hole016")
hole17.Profile = sketch18
hole17.ThreadType = "None"
hole17.Diameter = 2.2
hole17.DepthType = "ThroughAll"
doc.recompute()

mirrored9 = body.newObject("PartDesign::Mirrored", "Mirrored008")
mirrored9.Originals = [hole17]
mirrored9.MirrorPlane = (doc.getObject("XY_Plane"), [""])
body.Tip = mirrored9
doc.recompute()

mirrored10 = body.newObject("PartDesign::Mirrored", "Mirrored009")
mirrored10.Originals = [hole17]
mirrored10.MirrorPlane = (doc.getObject("YZ_Plane"), [""])
body.Tip = mirrored10

# Sketch on XZ plane
sketch19 = body.newObject("Sketcher::SketchObject", "Sketch018")
sketch19.AttachmentSupport = (doc.getObject("XZ_Plane"), [""])
sketch19.MapMode = "FlatFace"
sketch19.addGeometry(Part.Circle(Vector(10.2, -6.3, 0), Vector(0, 0, 1), 1.1), False)
sketch19.addConstraint(Sketcher.Constraint("Diameter", 0, 2.2))
sketch19.addConstraint(Sketcher.Constraint("DistanceX", -1, 1, 0, 3, 10.16))
sketch19.addConstraint(Sketcher.Constraint("DistanceY", 0, 3, -1, 1, 6.35))
doc.recompute()
hole18 = body.newObject("PartDesign::Hole", "Hole017")
hole18.Profile = sketch19
hole18.ThreadType = "None"
hole18.Diameter = 2.2
hole18.DepthType = "ThroughAll"

# Sketch on XZ plane
sketch20 = body.newObject("Sketcher::SketchObject", "Sketch019")
sketch20.AttachmentSupport = (doc.getObject("XZ_Plane"), [""])
sketch20.MapMode = "FlatFace"
sketch20.AttachmentOffset = App.Placement(Vector(0, 0, -4), App.Rotation())
sketch20.addGeometry(Part.Circle(Vector(-17, -17, 0), Vector(0, 0, 1), 1.1), False)
sketch20.addConstraint(Sketcher.Constraint("Diameter", 0, 2.2))
sketch20.addConstraint(Sketcher.Constraint("DistanceX", 0, 3, -1, 1, 17.0))
sketch20.addConstraint(Sketcher.Constraint("DistanceY", 0, 3, -1, 1, 17.0))
doc.recompute()
hole19 = body.newObject("PartDesign::Hole", "Hole018")
hole19.Profile = sketch20
hole19.ThreadType = "None"
hole19.Diameter = 2.2
hole19.DepthType = "ThroughAll"
hole19.Reversed = True
doc.recompute()

mirrored11 = body.newObject("PartDesign::Mirrored", "Mirrored010")
mirrored11.Originals = [hole19]
mirrored11.MirrorPlane = (doc.getObject("XY_Plane"), [""])
body.Tip = mirrored11
doc.recompute()

mirrored12 = body.newObject("PartDesign::Mirrored", "Mirrored011")
mirrored12.Originals = [hole19]
mirrored12.MirrorPlane = (doc.getObject("YZ_Plane"), [""])
body.Tip = mirrored12

# Sketch on XZ plane
sketch21 = body.newObject("Sketcher::SketchObject", "Sketch020")
sketch21.AttachmentSupport = (doc.getObject("XZ_Plane"), [""])
sketch21.MapMode = "FlatFace"
sketch21.AttachmentOffset = App.Placement(Vector(0, 0, -4), App.Rotation())
sketch21.addGeometry(Part.Circle(Vector(17, 17, 0), Vector(0, 0, 1), 1.1), False)
sketch21.addConstraint(Sketcher.Constraint("Diameter", 0, 2.2))
sketch21.addConstraint(Sketcher.Constraint("DistanceX", -1, 1, 0, 3, 17.0))
sketch21.addConstraint(Sketcher.Constraint("DistanceY", -1, 1, 0, 3, 17.0))
doc.recompute()
hole20 = body.newObject("PartDesign::Hole", "Hole019")
hole20.Profile = sketch21
hole20.ThreadType = "None"
hole20.Diameter = 2.2
hole20.DepthType = "ThroughAll"
hole20.Reversed = True

# Sketch on XY plane
sketch22 = body.newObject("Sketcher::SketchObject", "Sketch021")
sketch22.AttachmentSupport = (doc.getObject("XY_Plane"), [""])
sketch22.MapMode = "FlatFace"
add_polygon(sketch22, [(-150, 4), (-150, 0), (0, 0), (0, 4)])  # lines 0-3
sketch22.addConstraint(Sketcher.Constraint("Vertical", 0))
sketch22.addConstraint(Sketcher.Constraint("Horizontal", 1))
sketch22.addConstraint(Sketcher.Constraint("Vertical", 2))
sketch22.addConstraint(Sketcher.Constraint("Horizontal", 3))
sketch22.addConstraint(Sketcher.Constraint("Coincident", 1, 2, -1, 1))
sketch22.addConstraint(Sketcher.Constraint("DistanceX", 1, 1, 1, 2, 150.0))
sketch22.addConstraint(Sketcher.Constraint("DistanceY", 0, 2, 0, 1, 4.0))
pocket1 = body.newObject("PartDesign::Pocket", "Pocket")
pocket1.Profile = sketch22
pocket1.Type = "ThroughAll"
pocket1.Midplane = True

# Sketch on XZ plane
sketch23 = body.newObject("Sketcher::SketchObject", "Sketch022")
sketch23.AttachmentSupport = (doc.getObject("XZ_Plane"), [""])
sketch23.MapMode = "FlatFace"
sketch23.AttachmentOffset = App.Placement(Vector(0, 0, -4), App.Rotation())
add_polygon(sketch23, [(0, -40), (0, -20), (30, -20), (30, -40)])  # lines 0-3
sketch23.addConstraint(Sketcher.Constraint("Vertical", 0))
sketch23.addConstraint(Sketcher.Constraint("Horizontal", 1))
sketch23.addConstraint(Sketcher.Constraint("Vertical", 2))
sketch23.addConstraint(Sketcher.Constraint("Horizontal", 3))
sketch23.addConstraint(Sketcher.Constraint("PointOnObject", 0, 2, -2))
sketch23.addConstraint(Sketcher.Constraint("DistanceX", 1, 1, 1, 2, 30.0))
sketch23.addConstraint(Sketcher.Constraint("DistanceY", 0, 1, 0, 2, 20.0))
sketch23.addConstraint(Sketcher.Constraint("DistanceY", 0, 2, -1, 1, 20.0))
pocket2 = body.newObject("PartDesign::Pocket", "Pocket001")
pocket2.Profile = sketch23
pocket2.Type = "ThroughAll"
pocket2.Reversed = True
doc.recompute()

mirrored13 = body.newObject("PartDesign::Mirrored", "Mirrored012")
mirrored13.Originals = [pocket2]
mirrored13.MirrorPlane = (doc.getObject("XY_Plane"), [""])
body.Tip = mirrored13
doc.recompute()

fillet5 = body.newObject("PartDesign::Fillet", "Fillet004")
fillet5.Base = (mirrored13, edges_at(mirrored13, [
    (0, 0, -57.5),
    (0, 4, -57.5),
    (0, 4, 0),
    (0, 0, 0),
    (30, 0, -30),
    (30, 2, -40),
    (15, 0, -20),
    (30, 2, -20),
    (0, 2, -20),
    (15, 0, -40),
    (0, 2, -40),
    (30, 4, -30),
    (15, 4, -40),
    (15, 4, -20),
    (0, 4, 57.5),
    (0, 0, 57.5),
    (30, 4, 30),
    (30, 2, 20),
    (15, 4, 40),
    (0, 2, 40),
    (15, 4, 20),
    (0, 2, 20),
    (30, 0, 30),
    (15, 0, 40),
    (15, 0, 20),
]))
fillet5.Radius = 1

doc.recompute()
